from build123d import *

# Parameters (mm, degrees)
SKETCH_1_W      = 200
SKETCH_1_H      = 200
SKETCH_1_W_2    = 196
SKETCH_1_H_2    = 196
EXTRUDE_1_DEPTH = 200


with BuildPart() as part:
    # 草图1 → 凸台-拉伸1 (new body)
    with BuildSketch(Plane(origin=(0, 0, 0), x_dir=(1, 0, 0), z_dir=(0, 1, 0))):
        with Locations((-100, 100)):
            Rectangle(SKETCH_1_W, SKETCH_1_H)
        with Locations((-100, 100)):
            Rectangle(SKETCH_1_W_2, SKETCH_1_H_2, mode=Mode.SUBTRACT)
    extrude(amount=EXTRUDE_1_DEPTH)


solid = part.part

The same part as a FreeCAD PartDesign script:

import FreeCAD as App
import Part
import Sketcher

V = App.Vector
Q = App.Units.Quantity

doc = App.newDocument("Part")
params = doc.addObject("Spreadsheet::Sheet", "Params")
for row, (alias, value) in enumerate([
    ("sketch1_width", "200 mm"),
    ("sketch1_width2", "196 mm"),
    ("pad1_length", "200 mm"),
], start=1):
    params.set(f"A{row}", alias)
    params.set(f"B{row}", "=" + value)
    params.setAlias(f"B{row}", alias)

body = doc.addObject("PartDesign::Body", "Body")

# Sketch on XZ plane
sketch1 = doc.addObject("Sketcher::SketchObject", "Sketch")
body.addObject(sketch1)
sketch1.AttachmentSupport = (doc.XZ_Plane, [""])
sketch1.MapMode = "FlatFace"
sketch1.addGeometry([
    Part.LineSegment(V(-200, -200, 0), V(-200, 0, 0)),  # 0
    Part.LineSegment(V(-200, 0, 0), V(0, 0, 0)),  # 1
    Part.LineSegment(V(0, 0, 0), V(0, -200, 0)),  # 2
    Part.LineSegment(V(0, -200, 0), V(-200, -200, 0)),  # 3
    Part.LineSegment(V(-2, -2, 0), V(-198, -2, 0)),  # 4
    Part.LineSegment(V(-198, -2, 0), V(-198, -198, 0)),  # 5
    Part.LineSegment(V(-198, -198, 0), V(-2, -198, 0)),  # 6
    Part.LineSegment(V(-2, -198, 0), V(-2, -2, 0)),  # 7
], False)
sketch1.addConstraint([
    Sketcher.Constraint("Coincident", 0, 2, 1, 1),
    Sketcher.Constraint("Coincident", 1, 2, 2, 1),
    Sketcher.Constraint("Coincident", 2, 2, 3, 1),
    Sketcher.Constraint("Coincident", 3, 2, 0, 1),
    Sketcher.Constraint("Coincident", 4, 2, 5, 1),
    Sketcher.Constraint("Coincident", 5, 2, 6, 1),
    Sketcher.Constraint("Coincident", 6, 2, 7, 1),
    Sketcher.Constraint("Coincident", 7, 2, 4, 1),
    Sketcher.Constraint("Vertical", 0),
    Sketcher.Constraint("Horizontal", 1),
    Sketcher.Constraint("Vertical", 2),
    Sketcher.Constraint("Horizontal", 3),
    Sketcher.Constraint("Horizontal", 4),
    Sketcher.Constraint("Vertical", 5),
    Sketcher.Constraint("Horizontal", 6),
    Sketcher.Constraint("Vertical", 7),
    Sketcher.Constraint("Coincident", 1, 2, -1, 1),
    Sketcher.Constraint("Equal", 3, 0),
    Sketcher.Constraint("Equal", 6, 5),
    Sketcher.Constraint("DistanceX", 1, 1, 1, 2, Q("200 mm")),
    Sketcher.Constraint("DistanceX", 4, 2, 4, 1, Q("196 mm")),
    Sketcher.Constraint("DistanceX", 4, 2, -1, 1, Q("198 mm")),
    Sketcher.Constraint("DistanceY", 4, 2, -1, 1, Q("2 mm")),
])
sketch1.setExpression("Constraints[19]", "Params.sketch1_width")
sketch1.setExpression("Constraints[20]", "Params.sketch1_width2")
pad1 = doc.addObject("PartDesign::Pad", "Pad")
body.addObject(pad1)
pad1.Profile = sketch1
pad1.setExpression("Length", "Params.pad1_length")
pad1.Reversed = True

doc.recompute()
